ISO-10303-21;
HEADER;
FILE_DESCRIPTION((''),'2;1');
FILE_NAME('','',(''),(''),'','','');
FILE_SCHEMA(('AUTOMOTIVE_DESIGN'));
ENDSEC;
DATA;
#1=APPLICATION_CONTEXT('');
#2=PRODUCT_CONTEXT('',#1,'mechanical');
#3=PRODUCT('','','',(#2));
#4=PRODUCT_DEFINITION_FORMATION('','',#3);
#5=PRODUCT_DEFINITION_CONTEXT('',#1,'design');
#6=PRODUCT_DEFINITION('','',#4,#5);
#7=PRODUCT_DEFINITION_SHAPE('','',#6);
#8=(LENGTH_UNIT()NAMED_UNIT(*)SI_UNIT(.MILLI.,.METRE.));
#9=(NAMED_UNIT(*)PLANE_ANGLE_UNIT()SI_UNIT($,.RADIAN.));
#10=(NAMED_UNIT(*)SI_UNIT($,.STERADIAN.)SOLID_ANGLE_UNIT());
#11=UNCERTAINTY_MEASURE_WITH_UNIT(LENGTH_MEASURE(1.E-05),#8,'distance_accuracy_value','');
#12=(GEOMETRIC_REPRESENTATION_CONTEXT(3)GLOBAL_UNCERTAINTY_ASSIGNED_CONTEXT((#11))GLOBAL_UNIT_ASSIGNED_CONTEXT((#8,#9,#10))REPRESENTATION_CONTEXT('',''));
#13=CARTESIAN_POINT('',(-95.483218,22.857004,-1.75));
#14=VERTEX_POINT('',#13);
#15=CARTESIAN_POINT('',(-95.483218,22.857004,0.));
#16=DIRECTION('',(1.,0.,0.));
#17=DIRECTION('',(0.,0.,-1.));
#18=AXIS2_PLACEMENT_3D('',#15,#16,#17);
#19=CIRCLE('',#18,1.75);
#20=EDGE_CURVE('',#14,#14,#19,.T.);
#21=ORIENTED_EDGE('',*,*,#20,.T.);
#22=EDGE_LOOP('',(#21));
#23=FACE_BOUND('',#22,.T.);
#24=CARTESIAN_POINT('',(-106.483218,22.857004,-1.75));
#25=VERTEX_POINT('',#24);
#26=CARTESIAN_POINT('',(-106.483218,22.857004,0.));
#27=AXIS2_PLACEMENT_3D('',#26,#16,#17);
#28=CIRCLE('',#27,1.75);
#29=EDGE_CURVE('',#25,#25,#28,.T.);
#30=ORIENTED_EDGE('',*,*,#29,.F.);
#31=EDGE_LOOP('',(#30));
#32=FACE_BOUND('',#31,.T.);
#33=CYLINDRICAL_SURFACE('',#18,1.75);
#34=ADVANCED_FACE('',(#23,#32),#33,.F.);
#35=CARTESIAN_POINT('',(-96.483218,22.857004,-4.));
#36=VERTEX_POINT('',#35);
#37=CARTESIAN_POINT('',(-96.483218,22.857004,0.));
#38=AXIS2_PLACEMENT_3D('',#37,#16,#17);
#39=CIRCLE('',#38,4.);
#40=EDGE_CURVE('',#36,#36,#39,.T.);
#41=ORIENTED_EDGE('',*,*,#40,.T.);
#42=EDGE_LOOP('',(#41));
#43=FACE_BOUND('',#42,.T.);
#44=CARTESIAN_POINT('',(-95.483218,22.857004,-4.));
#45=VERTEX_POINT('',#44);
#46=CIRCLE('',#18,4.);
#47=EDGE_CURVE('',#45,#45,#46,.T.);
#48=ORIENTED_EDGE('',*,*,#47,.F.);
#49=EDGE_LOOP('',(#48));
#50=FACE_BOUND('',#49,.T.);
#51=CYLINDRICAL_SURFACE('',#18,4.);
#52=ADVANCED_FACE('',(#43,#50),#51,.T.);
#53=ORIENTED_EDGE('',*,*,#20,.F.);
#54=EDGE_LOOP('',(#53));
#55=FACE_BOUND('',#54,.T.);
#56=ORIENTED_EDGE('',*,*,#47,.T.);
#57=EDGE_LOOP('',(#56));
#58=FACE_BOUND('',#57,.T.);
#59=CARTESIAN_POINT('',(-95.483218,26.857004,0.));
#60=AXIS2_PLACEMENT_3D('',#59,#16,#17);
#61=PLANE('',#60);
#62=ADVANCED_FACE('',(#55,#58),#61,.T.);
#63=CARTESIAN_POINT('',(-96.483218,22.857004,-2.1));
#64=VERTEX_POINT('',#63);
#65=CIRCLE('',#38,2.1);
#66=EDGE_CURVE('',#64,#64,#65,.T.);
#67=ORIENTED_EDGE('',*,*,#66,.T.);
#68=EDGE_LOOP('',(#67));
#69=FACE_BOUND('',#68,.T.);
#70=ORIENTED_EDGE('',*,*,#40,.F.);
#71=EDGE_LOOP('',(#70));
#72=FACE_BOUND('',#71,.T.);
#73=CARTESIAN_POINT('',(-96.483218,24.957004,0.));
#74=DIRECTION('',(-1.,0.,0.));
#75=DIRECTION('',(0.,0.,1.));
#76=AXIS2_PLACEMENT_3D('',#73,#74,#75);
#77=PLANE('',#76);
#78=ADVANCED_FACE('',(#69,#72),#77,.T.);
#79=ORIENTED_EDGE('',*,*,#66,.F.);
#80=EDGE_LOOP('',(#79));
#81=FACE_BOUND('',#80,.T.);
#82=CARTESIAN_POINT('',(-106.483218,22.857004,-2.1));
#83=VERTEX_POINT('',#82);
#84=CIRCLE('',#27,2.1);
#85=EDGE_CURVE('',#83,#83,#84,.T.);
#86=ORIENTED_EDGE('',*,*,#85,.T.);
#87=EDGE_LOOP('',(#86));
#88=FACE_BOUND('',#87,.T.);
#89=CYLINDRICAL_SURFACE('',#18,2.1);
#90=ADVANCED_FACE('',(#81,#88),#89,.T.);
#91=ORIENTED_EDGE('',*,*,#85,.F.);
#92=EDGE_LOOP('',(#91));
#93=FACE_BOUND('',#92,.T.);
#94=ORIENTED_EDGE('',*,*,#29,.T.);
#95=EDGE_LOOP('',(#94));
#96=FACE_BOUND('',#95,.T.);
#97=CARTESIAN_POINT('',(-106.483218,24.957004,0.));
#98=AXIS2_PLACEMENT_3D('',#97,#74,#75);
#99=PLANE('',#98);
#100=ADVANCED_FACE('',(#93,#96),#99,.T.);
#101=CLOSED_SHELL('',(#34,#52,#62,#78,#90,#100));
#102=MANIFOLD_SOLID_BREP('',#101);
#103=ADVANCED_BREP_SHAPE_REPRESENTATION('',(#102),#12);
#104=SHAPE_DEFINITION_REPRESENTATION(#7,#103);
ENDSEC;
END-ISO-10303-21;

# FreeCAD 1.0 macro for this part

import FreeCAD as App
import Part
import Sketcher
from FreeCAD import Vector
Q = App.Units.Quantity

doc = App.newDocument("Part")
body = doc.addObject("PartDesign::Body", "Body")

sketch1 = body.newObject("Sketcher::SketchObject", "Sketch")
sketch1.AttachmentSupport = (doc.getObject("XY_Plane"), [""])
sketch1.MapMode = "FlatFace"
sketch1.addGeometry([
    Part.LineSegment(Vector(-96.48, 24.96, 0), Vector(-106.48, 24.96, 0)),
    Part.LineSegment(Vector(-106.48, 24.96, 0), Vector(-106.48, 24.61, 0)),
    Part.LineSegment(Vector(-106.48, 24.61, 0), Vector(-95.48, 24.61, 0)),
    Part.LineSegment(Vector(-95.48, 24.61, 0), Vector(-95.48, 26.86, 0)),
    Part.LineSegment(Vector(-95.48, 26.86, 0), Vector(-96.48, 26.86, 0)),
    Part.LineSegment(Vector(-96.48, 26.86, 0), Vector(-96.48, 24.96, 0)),
], False)
sketch1.addGeometry(Part.LineSegment(Vector(-95.48, 22.86, 0), Vector(-106.48, 22.86, 0)), True)
sketch1.addConstraint([
    Sketcher.Constraint("Coincident", 0, 2, 1, 1),
    Sketcher.Constraint("Coincident", 1, 2, 2, 1),
    Sketcher.Constraint("Coincident", 2, 2, 3, 1),
    Sketcher.Constraint("Coincident", 3, 2, 4, 1),
    Sketcher.Constraint("Coincident", 4, 2, 5, 1),
    Sketcher.Constraint("Coincident", 5, 2, 0, 1),
    Sketcher.Constraint("Horizontal", 0),
    Sketcher.Constraint("Vertical", 1),
    Sketcher.Constraint("Horizontal", 2),
    Sketcher.Constraint("Vertical", 3),
    Sketcher.Constraint("Horizontal", 4),
    Sketcher.Constraint("Vertical", 5),
    Sketcher.Constraint("Horizontal", 6),
    Sketcher.Constraint("Vertical", 3, 2, 6, 1),
    Sketcher.Constraint("Vertical", 1, 2, 6, 2),
    Sketcher.Constraint("DistanceX", 0, 2, 0, 1, Q("10 mm")),
    Sketcher.Constraint("DistanceX", 2, 1, 2, 2, Q("11 mm")),
    Sketcher.Constraint("DistanceY", 5, 2, 5, 1, Q("1.9 mm")),
    Sketcher.Constraint("DistanceY", 6, 1, 3, 2, Q("4 mm")),
    Sketcher.Constraint("DistanceY", 1, 2, 1, 1, Q("0.35 mm")),
    Sketcher.Constraint("DistanceX", 0, 2, -1, 1, Q("106.483218 mm")),
    Sketcher.Constraint("DistanceY", -1, 1, 0, 2, Q("24.957004 mm")),
])
revolution = body.newObject("PartDesign::Revolution", "Revolution")
revolution.Profile = sketch1
revolution.ReferenceAxis = (sketch1, ["Axis0"])
revolution.Angle = 360

doc.recompute()
